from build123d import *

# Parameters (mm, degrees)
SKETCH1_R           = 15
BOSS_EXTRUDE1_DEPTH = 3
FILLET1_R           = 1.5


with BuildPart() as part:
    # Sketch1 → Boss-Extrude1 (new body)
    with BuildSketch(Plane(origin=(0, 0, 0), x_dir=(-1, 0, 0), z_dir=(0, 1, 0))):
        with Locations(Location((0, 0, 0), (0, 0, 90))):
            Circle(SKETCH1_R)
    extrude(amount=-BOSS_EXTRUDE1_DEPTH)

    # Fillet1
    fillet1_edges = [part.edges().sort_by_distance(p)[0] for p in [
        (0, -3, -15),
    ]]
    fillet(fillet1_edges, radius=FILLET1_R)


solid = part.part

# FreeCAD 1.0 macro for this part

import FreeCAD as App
import Part
import Sketcher

V = App.Vector


def edges_at(feature, points):
    """Names of the edges that pass closest to the given points."""
    edges = feature.Shape.Edges
    near = lambda p: min(range(len(edges)), key=lambda i: edges[i].distToShape(Part.Vertex(*p))[0])
    return sorted({f"Edge{near(p) + 1}" for p in points})

doc = App.newDocument("Part")
body = doc.addObject("PartDesign::Body", "Body")

# Sketch on XZ plane
sketch1 = body.newObject("Sketcher::SketchObject", "Sketch")
sketch1.AttachmentSupport = (doc.getObject("XZ_Plane"), [""])
sketch1.MapMode = "FlatFace"
sketch1.addGeometry(Part.Circle(V(0, 0, 0), V(0, 0, 1), 15), False)
sketch1.addConstraint([
    Sketcher.Constraint("Coincident", 0, 3, -1, 1),
    Sketcher.Constraint("Diameter", 0, 30.0),
])
pad1 = body.newObject("PartDesign::Pad", "Pad")
pad1.Profile = sketch1
pad1.Length = 3
doc.recompute()

fillet = body.newObject("PartDesign::Fillet", "Fillet")
fillet.Base = (pad1, edges_at(pad1, [(0, -3, -15)]))
fillet.Radius = 1.5

doc.recompute()
